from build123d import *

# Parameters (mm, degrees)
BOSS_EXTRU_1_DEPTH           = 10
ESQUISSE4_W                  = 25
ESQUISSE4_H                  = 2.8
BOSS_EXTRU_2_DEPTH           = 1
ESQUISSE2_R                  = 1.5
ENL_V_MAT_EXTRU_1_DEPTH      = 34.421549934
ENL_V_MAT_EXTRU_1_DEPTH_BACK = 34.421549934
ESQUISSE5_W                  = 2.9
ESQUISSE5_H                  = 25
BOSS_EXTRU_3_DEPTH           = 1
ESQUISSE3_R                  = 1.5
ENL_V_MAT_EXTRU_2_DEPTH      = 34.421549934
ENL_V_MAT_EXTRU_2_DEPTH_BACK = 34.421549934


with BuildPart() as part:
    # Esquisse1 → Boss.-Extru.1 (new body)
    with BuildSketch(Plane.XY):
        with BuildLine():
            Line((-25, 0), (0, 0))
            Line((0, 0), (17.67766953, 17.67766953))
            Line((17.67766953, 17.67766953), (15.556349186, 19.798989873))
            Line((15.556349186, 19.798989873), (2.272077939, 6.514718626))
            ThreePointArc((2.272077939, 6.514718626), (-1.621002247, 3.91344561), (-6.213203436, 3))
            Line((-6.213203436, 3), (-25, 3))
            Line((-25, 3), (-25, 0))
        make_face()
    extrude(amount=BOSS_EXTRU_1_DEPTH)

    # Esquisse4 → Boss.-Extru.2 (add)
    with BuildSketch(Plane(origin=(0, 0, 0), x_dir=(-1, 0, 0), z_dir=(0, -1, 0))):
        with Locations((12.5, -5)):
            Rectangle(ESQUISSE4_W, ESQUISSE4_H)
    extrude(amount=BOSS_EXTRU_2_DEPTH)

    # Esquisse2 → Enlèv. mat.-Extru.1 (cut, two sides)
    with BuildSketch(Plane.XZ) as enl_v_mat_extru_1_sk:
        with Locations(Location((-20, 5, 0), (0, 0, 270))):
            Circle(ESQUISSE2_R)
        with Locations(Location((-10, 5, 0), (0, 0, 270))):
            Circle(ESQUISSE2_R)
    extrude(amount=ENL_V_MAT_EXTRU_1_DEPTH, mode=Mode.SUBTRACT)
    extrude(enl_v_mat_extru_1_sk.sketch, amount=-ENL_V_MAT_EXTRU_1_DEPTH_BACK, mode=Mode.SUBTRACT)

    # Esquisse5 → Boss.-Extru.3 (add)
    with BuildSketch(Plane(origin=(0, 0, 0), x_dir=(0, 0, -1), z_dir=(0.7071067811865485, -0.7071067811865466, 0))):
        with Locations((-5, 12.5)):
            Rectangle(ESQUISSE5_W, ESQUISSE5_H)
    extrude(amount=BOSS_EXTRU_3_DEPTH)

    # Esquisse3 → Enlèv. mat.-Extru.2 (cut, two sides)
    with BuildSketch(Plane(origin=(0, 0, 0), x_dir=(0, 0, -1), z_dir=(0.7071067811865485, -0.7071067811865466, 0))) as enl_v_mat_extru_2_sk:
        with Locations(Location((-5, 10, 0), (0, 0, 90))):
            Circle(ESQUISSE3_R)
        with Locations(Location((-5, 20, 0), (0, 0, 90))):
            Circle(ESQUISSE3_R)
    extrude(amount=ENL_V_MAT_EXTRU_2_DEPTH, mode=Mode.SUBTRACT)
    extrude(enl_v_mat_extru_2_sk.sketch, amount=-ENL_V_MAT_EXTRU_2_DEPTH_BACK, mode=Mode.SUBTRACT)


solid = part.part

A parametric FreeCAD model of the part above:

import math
import FreeCAD as App
import Part
import Sketcher
from FreeCAD import Vector
Q = App.Units.Quantity


def add_polygon(sketch, points):
    """Adds a closed chain of lines whose ends are joined by coincident constraints."""
    first, n = sketch.GeometryCount, len(points)
    for a, b in zip(points, points[1:] + points[:1]):
        sketch.addGeometry(Part.LineSegment(App.Vector(*a, 0), App.Vector(*b, 0)), False)
    for i in range(n):
        sketch.addConstraint(Sketcher.Constraint("Coincident", first + i, 2, first + (i + 1) % n, 1))

doc = App.newDocument("Part")
body = doc.addObject("PartDesign::Body", "Body")

# Sketch on XY plane
sketch1 = body.newObject("Sketcher::SketchObject", "Sketch")
sketch1.AttachmentSupport = (doc.getObject("XY_Plane"), [""])
sketch1.MapMode = "FlatFace"
sketch1.addGeometry(Part.LineSegment(Vector(-25, 0, 0), Vector(0, 0, 0)), False)
sketch1.addGeometry(Part.LineSegment(Vector(0, 0, 0), Vector(17.7, 17.7, 0)), False)
sketch1.addGeometry(Part.LineSegment(Vector(17.7, 17.7, 0), Vector(15.6, 19.8, 0)), False)
sketch1.addGeometry(Part.LineSegment(Vector(15.6, 19.8, 0), Vector(2.3, 6.5, 0)), False)
sketch1.addGeometry(Part.ArcOfCircle(Part.Circle(Vector(-6.2, 15, 0), Vector(0, 0, 1), 12), math.radians(-90), math.radians(-45)), False)
sketch1.addGeometry(Part.LineSegment(Vector(-6.2, 3, 0), Vector(-25, 3, 0)), False)
sketch1.addGeometry(Part.LineSegment(Vector(-25, 3, 0), Vector(-25, 0, 0)), False)
sketch1.addConstraint(Sketcher.Constraint("Coincident", 0, 2, 1, 1))
sketch1.addConstraint(Sketcher.Constraint("Coincident", 1, 2, 2, 1))
sketch1.addConstraint(Sketcher.Constraint("Coincident", 2, 2, 3, 1))
sketch1.addConstraint(Sketcher.Constraint("Tangent", 3, 2, 4, 2))
sketch1.addConstraint(Sketcher.Constraint("Tangent", 4, 1, 5, 1))
sketch1.addConstraint(Sketcher.Constraint("Coincident", 5, 2, 6, 1))
sketch1.addConstraint(Sketcher.Constraint("Coincident", 6, 2, 0, 1))
sketch1.addConstraint(Sketcher.Constraint("Horizontal", 0))
sketch1.addConstraint(Sketcher.Constraint("Horizontal", 5))
sketch1.addConstraint(Sketcher.Constraint("Vertical", 6))
sketch1.addConstraint(Sketcher.Constraint("Coincident", 0, 2, -1, 1))
sketch1.addConstraint(Sketcher.Constraint("Perpendicular", 1, 2))
sketch1.addConstraint(Sketcher.Constraint("Perpendicular", 2, 3))
sketch1.addConstraint(Sketcher.Constraint("Radius", 4, 12.0))
sketch1.addConstraint(Sketcher.Constraint("DistanceX", 0, 1, 0, 2, 25.0))
sketch1.addConstraint(Sketcher.Constraint("DistanceY", 6, 2, 6, 1, 3.0))
sketch1.addConstraint(Sketcher.Constraint("Angle", 1, Q("45 deg")))
sketch1.addConstraint(Sketcher.Constraint("Distance", 1, 25.0))
sketch1.addConstraint(Sketcher.Constraint("Distance", 2, 3.0))
pad1 = body.newObject("PartDesign::Pad", "Pad")
pad1.Profile = sketch1
pad1.Length = 10

# Sketch on XZ plane
sketch2 = body.newObject("Sketcher::SketchObject", "Sketch001")
sketch2.AttachmentSupport = (doc.getObject("XZ_Plane"), [""])
sketch2.MapMode = "FlatFace"
add_polygon(sketch2, [(0, 3.6), (0, 6.4), (-25, 6.4), (-25, 3.6)])  # lines 0-3
sketch2.addConstraint(Sketcher.Constraint("Vertical", 0))
sketch2.addConstraint(Sketcher.Constraint("Horizontal", 1))
sketch2.addConstraint(Sketcher.Constraint("Vertical", 2))
sketch2.addConstraint(Sketcher.Constraint("Horizontal", 3))
sketch2.addConstraint(Sketcher.Constraint("PointOnObject", 0, 2, -2))
sketch2.addConstraint(Sketcher.Constraint("DistanceX", 1, 2, 1, 1, 25.0))
sketch2.addConstraint(Sketcher.Constraint("DistanceY", 0, 1, 0, 2, 2.8))
sketch2.addConstraint(Sketcher.Constraint("DistanceY", -1, 1, 0, 2, 6.4))
pad2 = body.newObject("PartDesign::Pad", "Pad001")
pad2.Profile = sketch2
pad2.Length = 1

# Sketch on XZ plane
sketch3 = body.newObject("Sketcher::SketchObject", "Sketch002")
sketch3.AttachmentSupport = (doc.getObject("XZ_Plane"), [""])
sketch3.MapMode = "FlatFace"
sketch3.addGeometry(Part.Circle(Vector(-20, 5, 0), Vector(0, 0, 1), 1.5), False)
sketch3.addGeometry(Part.Circle(Vector(-10, 5, 0), Vector(0, 0, 1), 1.5), False)
sketch3.addConstraint(Sketcher.Constraint("Equal", 0, 1))
sketch3.addConstraint(Sketcher.Constraint("Horizontal", 0, 3, 1, 3))
sketch3.addConstraint(Sketcher.Constraint("Diameter", 0, 3.0))
sketch3.addConstraint(Sketcher.Constraint("DistanceX", 0, 3, -1, 1, 20.0))
sketch3.addConstraint(Sketcher.Constraint("DistanceY", -1, 1, 0, 3, 5.0))
sketch3.addConstraint(Sketcher.Constraint("DistanceX", 1, 3, -1, 1, 10.0))
pocket1 = body.newObject("PartDesign::Pocket", "Pocket")
pocket1.Profile = sketch3
pocket1.Type = "ThroughAll"
pocket1.Midplane = True

# Sketch on an angled plane
sketch4 = body.newObject("Sketcher::SketchObject", "Sketch003")
sketch4.Placement = App.Placement(Vector(0, 0, 0), App.Rotation(Vector(0, 0, -1), Vector(0.707106781, 0.707106781, 0), Vector(0.707106781, -0.707106781, 0), "ZXY"))
add_polygon(sketch4, [(-6.5, 25), (-6.5, 0), (-3.5, 0), (-3.5, 25)])  # lines 0-3
sketch4.addConstraint(Sketcher.Constraint("Vertical", 0))
sketch4.addConstraint(Sketcher.Constraint("Horizontal", 1))
sketch4.addConstraint(Sketcher.Constraint("Vertical", 2))
sketch4.addConstraint(Sketcher.Constraint("Horizontal", 3))
sketch4.addConstraint(Sketcher.Constraint("PointOnObject", 0, 2, -1))
sketch4.addConstraint(Sketcher.Constraint("DistanceY", 0, 2, 0, 1, 25.0))
sketch4.addConstraint(Sketcher.Constraint("DistanceX", 1, 1, 1, 2, 2.9))
sketch4.addConstraint(Sketcher.Constraint("DistanceX", 0, 2, -1, 1, 6.45))
pad3 = body.newObject("PartDesign::Pad", "Pad002")
pad3.Profile = sketch4
pad3.Length = 1

# Sketch on an angled plane
sketch5 = body.newObject("Sketcher::SketchObject", "Sketch004")
sketch5.Placement = App.Placement(Vector(0, 0, 0), App.Rotation(Vector(0, 0, -1), Vector(0.707106781, 0.707106781, 0), Vector(0.707106781, -0.707106781, 0), "ZXY"))
sketch5.addGeometry(Part.Circle(Vector(-5, 10, 0), Vector(0, 0, 1), 1.5), False)
sketch5.addGeometry(Part.Circle(Vector(-5, 20, 0), Vector(0, 0, 1), 1.5), False)
sketch5.addConstraint(Sketcher.Constraint("Equal", 0, 1))
sketch5.addConstraint(Sketcher.Constraint("Vertical", 0, 3, 1, 3))
sketch5.addConstraint(Sketcher.Constraint("Diameter", 0, 3.0))
sketch5.addConstraint(Sketcher.Constraint("DistanceX", 0, 3, -1, 1, 5.0))
sketch5.addConstraint(Sketcher.Constraint("DistanceY", -1, 1, 0, 3, 10.0))
sketch5.addConstraint(Sketcher.Constraint("DistanceY", -1, 1, 1, 3, 20.0))
pocket2 = body.newObject("PartDesign::Pocket", "Pocket001")
pocket2.Profile = sketch5
pocket2.Type = "ThroughAll"
pocket2.Midplane = True

doc.recompute()
